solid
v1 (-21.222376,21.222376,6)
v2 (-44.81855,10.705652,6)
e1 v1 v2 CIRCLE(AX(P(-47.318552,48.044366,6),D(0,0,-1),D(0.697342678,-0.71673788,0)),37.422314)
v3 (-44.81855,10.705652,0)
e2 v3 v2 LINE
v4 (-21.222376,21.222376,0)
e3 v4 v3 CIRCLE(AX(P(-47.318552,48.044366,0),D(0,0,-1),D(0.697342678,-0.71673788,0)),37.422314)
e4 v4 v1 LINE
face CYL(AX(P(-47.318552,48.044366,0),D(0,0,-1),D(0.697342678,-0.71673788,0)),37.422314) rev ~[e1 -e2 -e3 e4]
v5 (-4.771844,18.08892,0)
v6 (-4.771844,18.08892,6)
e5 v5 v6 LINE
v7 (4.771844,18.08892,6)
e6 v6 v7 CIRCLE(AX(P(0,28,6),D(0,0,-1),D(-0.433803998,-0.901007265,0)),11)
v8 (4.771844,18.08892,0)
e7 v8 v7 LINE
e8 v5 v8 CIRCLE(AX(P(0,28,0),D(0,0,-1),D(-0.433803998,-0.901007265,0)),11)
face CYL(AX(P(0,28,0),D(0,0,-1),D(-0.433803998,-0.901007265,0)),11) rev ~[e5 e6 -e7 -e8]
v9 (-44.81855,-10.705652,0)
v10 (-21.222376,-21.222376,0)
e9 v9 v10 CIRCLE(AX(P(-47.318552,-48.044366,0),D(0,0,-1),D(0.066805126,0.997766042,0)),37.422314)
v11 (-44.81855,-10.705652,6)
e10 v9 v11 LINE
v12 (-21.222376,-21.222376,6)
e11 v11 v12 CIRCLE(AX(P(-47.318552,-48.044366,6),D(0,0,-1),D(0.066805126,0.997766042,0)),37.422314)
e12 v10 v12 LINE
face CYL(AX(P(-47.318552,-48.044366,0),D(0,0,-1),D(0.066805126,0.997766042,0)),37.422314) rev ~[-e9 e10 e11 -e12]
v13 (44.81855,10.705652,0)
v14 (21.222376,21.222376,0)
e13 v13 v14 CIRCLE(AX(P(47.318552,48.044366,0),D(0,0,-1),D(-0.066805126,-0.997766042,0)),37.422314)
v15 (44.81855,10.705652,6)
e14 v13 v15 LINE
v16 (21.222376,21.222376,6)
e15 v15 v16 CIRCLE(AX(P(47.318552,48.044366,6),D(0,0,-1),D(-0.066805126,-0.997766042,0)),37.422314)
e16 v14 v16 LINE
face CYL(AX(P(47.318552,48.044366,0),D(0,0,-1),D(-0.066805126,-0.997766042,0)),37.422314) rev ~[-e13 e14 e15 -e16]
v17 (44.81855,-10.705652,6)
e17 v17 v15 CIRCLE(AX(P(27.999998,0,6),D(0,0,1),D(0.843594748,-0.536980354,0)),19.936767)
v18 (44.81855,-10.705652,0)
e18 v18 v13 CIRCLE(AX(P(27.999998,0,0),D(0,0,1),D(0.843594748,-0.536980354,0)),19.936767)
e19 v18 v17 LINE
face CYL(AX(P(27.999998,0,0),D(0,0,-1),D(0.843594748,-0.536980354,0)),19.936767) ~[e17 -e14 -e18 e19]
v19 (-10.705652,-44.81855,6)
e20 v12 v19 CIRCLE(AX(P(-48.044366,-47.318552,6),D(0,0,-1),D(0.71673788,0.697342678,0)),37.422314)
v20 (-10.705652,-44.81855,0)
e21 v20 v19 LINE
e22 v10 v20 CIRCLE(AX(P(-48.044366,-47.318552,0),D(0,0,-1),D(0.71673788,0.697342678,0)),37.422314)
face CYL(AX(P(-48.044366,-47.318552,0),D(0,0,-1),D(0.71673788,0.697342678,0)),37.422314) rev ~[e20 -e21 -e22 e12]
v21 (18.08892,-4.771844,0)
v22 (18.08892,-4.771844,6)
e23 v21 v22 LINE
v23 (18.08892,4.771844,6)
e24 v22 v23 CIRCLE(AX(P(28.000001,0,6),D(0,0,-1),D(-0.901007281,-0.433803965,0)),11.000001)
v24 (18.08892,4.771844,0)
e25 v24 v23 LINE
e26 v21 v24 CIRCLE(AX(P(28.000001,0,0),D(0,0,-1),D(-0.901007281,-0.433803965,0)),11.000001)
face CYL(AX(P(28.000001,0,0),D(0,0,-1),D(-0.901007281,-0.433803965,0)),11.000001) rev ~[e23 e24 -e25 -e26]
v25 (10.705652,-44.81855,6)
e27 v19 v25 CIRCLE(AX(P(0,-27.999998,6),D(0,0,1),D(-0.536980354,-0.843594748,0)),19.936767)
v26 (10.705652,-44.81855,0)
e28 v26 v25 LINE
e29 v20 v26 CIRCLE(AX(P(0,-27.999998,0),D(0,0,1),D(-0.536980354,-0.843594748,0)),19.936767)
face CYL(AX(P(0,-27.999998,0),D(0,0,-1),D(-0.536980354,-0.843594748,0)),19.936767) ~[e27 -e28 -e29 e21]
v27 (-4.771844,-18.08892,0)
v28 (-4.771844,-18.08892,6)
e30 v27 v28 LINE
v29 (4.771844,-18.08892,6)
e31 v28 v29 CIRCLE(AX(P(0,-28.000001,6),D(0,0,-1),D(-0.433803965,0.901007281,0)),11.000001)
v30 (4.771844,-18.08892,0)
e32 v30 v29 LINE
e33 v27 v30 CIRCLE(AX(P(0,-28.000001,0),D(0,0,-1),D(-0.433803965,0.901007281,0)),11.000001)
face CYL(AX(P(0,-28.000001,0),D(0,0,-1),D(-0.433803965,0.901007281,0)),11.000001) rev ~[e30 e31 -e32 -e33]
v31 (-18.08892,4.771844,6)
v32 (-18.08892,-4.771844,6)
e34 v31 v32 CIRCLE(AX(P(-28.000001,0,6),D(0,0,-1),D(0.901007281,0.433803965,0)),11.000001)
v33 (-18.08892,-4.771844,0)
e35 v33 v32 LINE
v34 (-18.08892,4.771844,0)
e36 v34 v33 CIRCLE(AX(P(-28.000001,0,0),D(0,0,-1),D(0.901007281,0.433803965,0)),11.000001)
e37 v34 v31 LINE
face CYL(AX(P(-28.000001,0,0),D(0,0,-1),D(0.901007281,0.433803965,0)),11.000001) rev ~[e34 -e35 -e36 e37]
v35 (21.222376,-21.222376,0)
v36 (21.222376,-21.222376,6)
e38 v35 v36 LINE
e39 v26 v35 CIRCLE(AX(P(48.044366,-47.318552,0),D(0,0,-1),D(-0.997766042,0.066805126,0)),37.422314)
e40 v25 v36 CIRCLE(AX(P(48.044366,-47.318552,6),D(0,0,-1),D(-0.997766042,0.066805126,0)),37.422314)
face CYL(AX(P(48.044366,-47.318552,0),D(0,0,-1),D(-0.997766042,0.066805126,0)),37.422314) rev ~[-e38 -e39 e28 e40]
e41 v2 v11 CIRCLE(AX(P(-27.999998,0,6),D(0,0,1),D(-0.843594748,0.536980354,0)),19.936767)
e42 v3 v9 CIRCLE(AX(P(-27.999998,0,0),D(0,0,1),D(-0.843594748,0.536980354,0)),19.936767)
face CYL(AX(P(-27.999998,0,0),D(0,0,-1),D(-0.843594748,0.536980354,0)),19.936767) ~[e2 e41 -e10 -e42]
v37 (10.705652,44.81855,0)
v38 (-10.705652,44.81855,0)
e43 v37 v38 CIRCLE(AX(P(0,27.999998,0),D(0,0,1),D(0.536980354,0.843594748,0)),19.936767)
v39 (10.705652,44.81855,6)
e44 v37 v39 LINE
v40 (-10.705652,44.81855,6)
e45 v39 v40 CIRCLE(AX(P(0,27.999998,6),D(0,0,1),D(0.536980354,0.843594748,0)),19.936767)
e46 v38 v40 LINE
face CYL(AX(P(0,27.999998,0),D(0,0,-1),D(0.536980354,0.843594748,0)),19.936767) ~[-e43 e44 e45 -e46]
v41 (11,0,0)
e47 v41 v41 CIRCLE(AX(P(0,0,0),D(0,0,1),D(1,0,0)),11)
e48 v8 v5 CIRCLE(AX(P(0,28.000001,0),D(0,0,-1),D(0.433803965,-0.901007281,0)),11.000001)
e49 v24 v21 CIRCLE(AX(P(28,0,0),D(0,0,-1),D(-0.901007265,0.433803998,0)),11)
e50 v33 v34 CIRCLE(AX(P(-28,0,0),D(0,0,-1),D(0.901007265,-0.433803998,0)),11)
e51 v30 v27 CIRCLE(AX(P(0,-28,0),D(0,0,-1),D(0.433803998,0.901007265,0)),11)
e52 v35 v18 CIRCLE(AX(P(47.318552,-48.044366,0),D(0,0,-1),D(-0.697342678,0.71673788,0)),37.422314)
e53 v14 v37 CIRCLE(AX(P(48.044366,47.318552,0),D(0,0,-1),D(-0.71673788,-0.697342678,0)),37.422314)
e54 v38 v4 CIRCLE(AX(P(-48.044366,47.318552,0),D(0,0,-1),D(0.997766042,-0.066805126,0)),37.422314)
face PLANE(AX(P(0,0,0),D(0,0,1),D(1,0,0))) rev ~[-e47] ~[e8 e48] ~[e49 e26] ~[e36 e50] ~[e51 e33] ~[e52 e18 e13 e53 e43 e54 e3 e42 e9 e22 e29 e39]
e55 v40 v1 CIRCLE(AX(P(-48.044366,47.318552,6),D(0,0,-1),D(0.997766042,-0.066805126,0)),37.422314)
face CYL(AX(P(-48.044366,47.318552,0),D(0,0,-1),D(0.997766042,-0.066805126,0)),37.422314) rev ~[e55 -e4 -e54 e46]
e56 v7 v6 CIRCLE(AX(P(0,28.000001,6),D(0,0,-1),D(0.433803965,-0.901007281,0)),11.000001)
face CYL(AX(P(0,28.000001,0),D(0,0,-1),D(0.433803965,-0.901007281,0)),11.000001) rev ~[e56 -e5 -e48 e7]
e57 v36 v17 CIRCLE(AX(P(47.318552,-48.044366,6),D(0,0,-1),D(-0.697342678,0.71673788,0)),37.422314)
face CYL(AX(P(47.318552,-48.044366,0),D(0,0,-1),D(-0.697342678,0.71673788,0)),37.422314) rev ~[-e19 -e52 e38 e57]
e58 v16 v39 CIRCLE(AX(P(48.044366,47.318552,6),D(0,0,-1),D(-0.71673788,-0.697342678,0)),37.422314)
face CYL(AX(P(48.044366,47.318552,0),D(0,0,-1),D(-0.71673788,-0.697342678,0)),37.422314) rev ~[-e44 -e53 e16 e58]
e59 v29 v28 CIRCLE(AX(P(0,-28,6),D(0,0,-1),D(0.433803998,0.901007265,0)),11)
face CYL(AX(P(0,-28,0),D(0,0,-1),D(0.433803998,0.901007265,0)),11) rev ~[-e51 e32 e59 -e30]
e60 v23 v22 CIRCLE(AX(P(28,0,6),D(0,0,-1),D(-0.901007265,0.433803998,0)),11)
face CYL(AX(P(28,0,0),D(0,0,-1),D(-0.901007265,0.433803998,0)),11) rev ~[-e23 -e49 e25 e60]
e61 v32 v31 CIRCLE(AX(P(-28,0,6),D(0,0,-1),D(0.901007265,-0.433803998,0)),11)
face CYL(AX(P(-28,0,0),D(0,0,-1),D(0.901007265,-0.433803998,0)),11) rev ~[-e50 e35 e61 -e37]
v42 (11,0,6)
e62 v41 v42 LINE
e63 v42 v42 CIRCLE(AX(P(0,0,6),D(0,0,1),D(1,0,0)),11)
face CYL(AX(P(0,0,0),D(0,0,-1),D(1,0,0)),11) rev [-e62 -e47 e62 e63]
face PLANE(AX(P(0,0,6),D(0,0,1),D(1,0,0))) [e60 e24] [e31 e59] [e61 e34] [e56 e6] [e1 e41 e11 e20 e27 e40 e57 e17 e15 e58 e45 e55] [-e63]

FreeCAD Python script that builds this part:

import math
import FreeCAD as App
import Part
import Sketcher
from FreeCAD import Vector

doc = App.newDocument("Part")
body = doc.addObject("PartDesign::Body", "Body")

sketch1 = body.newObject("Sketcher::SketchObject", "Sketch")
sketch1.AttachmentSupport = (doc.getObject("XY_Plane"), [""])
sketch1.MapMode = "FlatFace"
sketch1.addGeometry(Part.ArcOfCircle(Part.Circle(Vector(-48, 47, 0), Vector(0, 0, 1), 37), math.radians(-44), math.radians(-4)), False)
sketch1.addGeometry(Part.ArcOfCircle(Part.Circle(Vector(-47, 48, 0), Vector(0, 0, 1), 37), math.radians(-86), math.radians(-46)), False)
sketch1.addGeometry(Part.ArcOfCircle(Part.Circle(Vector(-28, 0, 0), Vector(0, 0, 1), 20), math.radians(148), math.radians(212)), False)
sketch1.addGeometry(Part.ArcOfCircle(Part.Circle(Vector(-47, -48, 0), Vector(0, 0, 1), 37), math.radians(46), math.radians(86)), False)
sketch1.addGeometry(Part.ArcOfCircle(Part.Circle(Vector(-48, -47, 0), Vector(0, 0, 1), 37), math.radians(4), math.radians(44)), False)
sketch1.addGeometry(Part.ArcOfCircle(Part.Circle(Vector(0, -28, 0), Vector(0, 0, 1), 20), math.radians(-122), math.radians(-58)), False)
sketch1.addGeometry(Part.ArcOfCircle(Part.Circle(Vector(48, -47, 0), Vector(0, 0, 1), 37), math.radians(136), math.radians(176)), False)
sketch1.addGeometry(Part.ArcOfCircle(Part.Circle(Vector(47, -48, 0), Vector(0, 0, 1), 37), math.radians(94), math.radians(134)), False)
sketch1.addGeometry(Part.ArcOfCircle(Part.Circle(Vector(28, 0, 0), Vector(0, 0, 1), 20), math.radians(-32), math.radians(32)), False)
sketch1.addGeometry(Part.ArcOfCircle(Part.Circle(Vector(47, 48, 0), Vector(0, 0, 1), 37), math.radians(-134), math.radians(-94)), False)
sketch1.addGeometry(Part.ArcOfCircle(Part.Circle(Vector(48, 47, 0), Vector(0, 0, 1), 37), math.radians(-176), math.radians(-136)), False)
sketch1.addGeometry(Part.ArcOfCircle(Part.Circle(Vector(0, 28, 0), Vector(0, 0, 1), 20), math.radians(58), math.radians(122)), False)
sketch1.addGeometry(Part.ArcOfCircle(Part.Circle(Vector(0, -28, 0), Vector(0, 0, 1), 11), math.radians(64), math.radians(116)), False)
sketch1.addGeometry(Part.ArcOfCircle(Part.Circle(Vector(0, -28, 0), Vector(0, 0, 1), 11), math.radians(116), math.radians(424)), False)
sketch1.addGeometry(Part.ArcOfCircle(Part.Circle(Vector(-28, 0, 0), Vector(0, 0, 1), 11), math.radians(-26), math.radians(26)), False)
sketch1.addGeometry(Part.ArcOfCircle(Part.Circle(Vector(-28, 0, 0), Vector(0, 0, 1), 11), math.radians(26), math.radians(334)), False)
sketch1.addGeometry(Part.Circle(Vector(0, 0, 0), Vector(0, 0, 1), 11), False)
sketch1.addGeometry(Part.ArcOfCircle(Part.Circle(Vector(0, 28, 0), Vector(0, 0, 1), 11), math.radians(-116), math.radians(-64)), False)
sketch1.addGeometry(Part.ArcOfCircle(Part.Circle(Vector(0, 28, 0), Vector(0, 0, 1), 11), math.radians(-64), math.radians(244)), False)
sketch1.addGeometry(Part.ArcOfCircle(Part.Circle(Vector(28, 0, 0), Vector(0, 0, 1), 11), math.radians(154), math.radians(206)), False)
sketch1.addGeometry(Part.ArcOfCircle(Part.Circle(Vector(28, 0, 0), Vector(0, 0, 1), 11), math.radians(-154), math.radians(154)), False)
sketch1.addConstraint(Sketcher.Constraint("Coincident", 0, 1, 1, 2))
sketch1.addConstraint(Sketcher.Constraint("Coincident", 1, 1, 2, 1))
sketch1.addConstraint(Sketcher.Constraint("Coincident", 2, 2, 3, 2))
sketch1.addConstraint(Sketcher.Constraint("Coincident", 3, 1, 4, 2))
sketch1.addConstraint(Sketcher.Constraint("Coincident", 4, 1, 5, 1))
sketch1.addConstraint(Sketcher.Constraint("Coincident", 5, 2, 6, 2))
sketch1.addConstraint(Sketcher.Constraint("Coincident", 6, 1, 7, 2))
sketch1.addConstraint(Sketcher.Constraint("Coincident", 7, 1, 8, 1))
sketch1.addConstraint(Sketcher.Constraint("Coincident", 8, 2, 9, 2))
sketch1.addConstraint(Sketcher.Constraint("Coincident", 9, 1, 10, 2))
sketch1.addConstraint(Sketcher.Constraint("Coincident", 10, 1, 11, 1))
sketch1.addConstraint(Sketcher.Constraint("Coincident", 11, 2, 0, 2))
sketch1.addConstraint(Sketcher.Constraint("Tangent", 12, 1, 13, 2))
sketch1.addConstraint(Sketcher.Constraint("Coincident", 13, 1, 12, 2))
sketch1.addConstraint(Sketcher.Constraint("Tangent", 14, 1, 15, 2))
sketch1.addConstraint(Sketcher.Constraint("Coincident", 15, 1, 14, 2))
sketch1.addConstraint(Sketcher.Constraint("Tangent", 17, 1, 18, 2))
sketch1.addConstraint(Sketcher.Constraint("Coincident", 18, 1, 17, 2))
sketch1.addConstraint(Sketcher.Constraint("Tangent", 19, 1, 20, 2))
sketch1.addConstraint(Sketcher.Constraint("Coincident", 20, 1, 19, 2))
sketch1.addConstraint(Sketcher.Constraint("Coincident", 16, 3, -1, 1))
sketch1.addConstraint(Sketcher.Constraint("Coincident", 12, 3, 5, 3))
sketch1.addConstraint(Sketcher.Constraint("Coincident", 14, 3, 2, 3))
sketch1.addConstraint(Sketcher.Constraint("Coincident", 17, 3, 11, 3))
sketch1.addConstraint(Sketcher.Constraint("Coincident", 19, 3, 8, 3))
sketch1.addConstraint(Sketcher.Constraint("Equal", 0, 1))
sketch1.addConstraint(Sketcher.Constraint("Equal", 1, 3))
sketch1.addConstraint(Sketcher.Constraint("Equal", 3, 4))
sketch1.addConstraint(Sketcher.Constraint("Equal", 2, 5))
sketch1.addConstraint(Sketcher.Constraint("Equal", 4, 6))
sketch1.addConstraint(Sketcher.Constraint("Equal", 6, 7))
sketch1.addConstraint(Sketcher.Constraint("Equal", 5, 8))
sketch1.addConstraint(Sketcher.Constraint("Equal", 7, 9))
sketch1.addConstraint(Sketcher.Constraint("Equal", 9, 10))
sketch1.addConstraint(Sketcher.Constraint("Equal", 8, 11))
sketch1.addConstraint(Sketcher.Constraint("Equal", 13, 14))
sketch1.addConstraint(Sketcher.Constraint("Equal", 15, 16))
sketch1.addConstraint(Sketcher.Constraint("Equal", 16, 17))
sketch1.addConstraint(Sketcher.Constraint("Equal", 18, 19))
sketch1.addConstraint(Sketcher.Constraint("Symmetric", 0, 3, 6, 3, -1, 1))
sketch1.addConstraint(Sketcher.Constraint("Symmetric", 1, 3, 7, 3, -1, 1))
sketch1.addConstraint(Sketcher.Constraint("Symmetric", 2, 3, 8, 3, -1, 1))
sketch1.addConstraint(Sketcher.Constraint("Symmetric", 3, 3, 9, 3, -1, 1))
sketch1.addConstraint(Sketcher.Constraint("Symmetric", 4, 3, 10, 3, -1, 1))
sketch1.addConstraint(Sketcher.Constraint("Symmetric", 5, 3, 11, 3, -1, 1))
sketch1.addConstraint(Sketcher.Constraint("Symmetric", 4, 3, 6, 3, -2))
sketch1.addConstraint(Sketcher.Constraint("Symmetric", 3, 3, 7, 3, -2))
sketch1.addConstraint(Sketcher.Constraint("Symmetric", 12, 1, 13, 1, -2))
sketch1.addConstraint(Sketcher.Constraint("Symmetric", 15, 1, 19, 1, -2))
sketch1.addConstraint(Sketcher.Constraint("Horizontal", 17, 1, 18, 1))
sketch1.addConstraint(Sketcher.Constraint("Horizontal", 14, 1, 20, 1))
sketch1.addConstraint(Sketcher.Constraint("Vertical", 14, 1, 15, 1))
sketch1.addConstraint(Sketcher.Constraint("Vertical", 13, 1, 17, 1))
sketch1.addConstraint(Sketcher.Constraint("Diameter", 16, 22.0))
sketch1.addConstraint(Sketcher.Constraint("DistanceX", 2, 3, -1, 1, 27.999998))
sketch1.addConstraint(Sketcher.Constraint("DistanceY", 5, 3, -1, 1, 27.999998))
sketch1.addConstraint(Sketcher.Constraint("Radius", 0, 37.422314))
sketch1.addConstraint(Sketcher.Constraint("Radius", 2, 19.936767))
sketch1.addConstraint(Sketcher.Constraint("DistanceY", 1, 1, 0, 3, 36.6129))
sketch1.addConstraint(Sketcher.Constraint("DistanceX", 3, 3, 4, 1, 36.6129))
sketch1.addConstraint(Sketcher.Constraint("DistanceX", 1, 1, -1, 1, 44.81855))
sketch1.addConstraint(Sketcher.Constraint("DistanceY", 4, 1, -1, 1, 44.81855))
sketch1.addConstraint(Sketcher.Constraint("DistanceY", 12, 1, -1, 1, 18.08892))
sketch1.addConstraint(Sketcher.Constraint("DistanceX", 14, 1, -1, 1, 18.08892))
pad1 = body.newObject("PartDesign::Pad", "Pad")
pad1.Profile = sketch1
pad1.Length = 6

doc.recompute()
